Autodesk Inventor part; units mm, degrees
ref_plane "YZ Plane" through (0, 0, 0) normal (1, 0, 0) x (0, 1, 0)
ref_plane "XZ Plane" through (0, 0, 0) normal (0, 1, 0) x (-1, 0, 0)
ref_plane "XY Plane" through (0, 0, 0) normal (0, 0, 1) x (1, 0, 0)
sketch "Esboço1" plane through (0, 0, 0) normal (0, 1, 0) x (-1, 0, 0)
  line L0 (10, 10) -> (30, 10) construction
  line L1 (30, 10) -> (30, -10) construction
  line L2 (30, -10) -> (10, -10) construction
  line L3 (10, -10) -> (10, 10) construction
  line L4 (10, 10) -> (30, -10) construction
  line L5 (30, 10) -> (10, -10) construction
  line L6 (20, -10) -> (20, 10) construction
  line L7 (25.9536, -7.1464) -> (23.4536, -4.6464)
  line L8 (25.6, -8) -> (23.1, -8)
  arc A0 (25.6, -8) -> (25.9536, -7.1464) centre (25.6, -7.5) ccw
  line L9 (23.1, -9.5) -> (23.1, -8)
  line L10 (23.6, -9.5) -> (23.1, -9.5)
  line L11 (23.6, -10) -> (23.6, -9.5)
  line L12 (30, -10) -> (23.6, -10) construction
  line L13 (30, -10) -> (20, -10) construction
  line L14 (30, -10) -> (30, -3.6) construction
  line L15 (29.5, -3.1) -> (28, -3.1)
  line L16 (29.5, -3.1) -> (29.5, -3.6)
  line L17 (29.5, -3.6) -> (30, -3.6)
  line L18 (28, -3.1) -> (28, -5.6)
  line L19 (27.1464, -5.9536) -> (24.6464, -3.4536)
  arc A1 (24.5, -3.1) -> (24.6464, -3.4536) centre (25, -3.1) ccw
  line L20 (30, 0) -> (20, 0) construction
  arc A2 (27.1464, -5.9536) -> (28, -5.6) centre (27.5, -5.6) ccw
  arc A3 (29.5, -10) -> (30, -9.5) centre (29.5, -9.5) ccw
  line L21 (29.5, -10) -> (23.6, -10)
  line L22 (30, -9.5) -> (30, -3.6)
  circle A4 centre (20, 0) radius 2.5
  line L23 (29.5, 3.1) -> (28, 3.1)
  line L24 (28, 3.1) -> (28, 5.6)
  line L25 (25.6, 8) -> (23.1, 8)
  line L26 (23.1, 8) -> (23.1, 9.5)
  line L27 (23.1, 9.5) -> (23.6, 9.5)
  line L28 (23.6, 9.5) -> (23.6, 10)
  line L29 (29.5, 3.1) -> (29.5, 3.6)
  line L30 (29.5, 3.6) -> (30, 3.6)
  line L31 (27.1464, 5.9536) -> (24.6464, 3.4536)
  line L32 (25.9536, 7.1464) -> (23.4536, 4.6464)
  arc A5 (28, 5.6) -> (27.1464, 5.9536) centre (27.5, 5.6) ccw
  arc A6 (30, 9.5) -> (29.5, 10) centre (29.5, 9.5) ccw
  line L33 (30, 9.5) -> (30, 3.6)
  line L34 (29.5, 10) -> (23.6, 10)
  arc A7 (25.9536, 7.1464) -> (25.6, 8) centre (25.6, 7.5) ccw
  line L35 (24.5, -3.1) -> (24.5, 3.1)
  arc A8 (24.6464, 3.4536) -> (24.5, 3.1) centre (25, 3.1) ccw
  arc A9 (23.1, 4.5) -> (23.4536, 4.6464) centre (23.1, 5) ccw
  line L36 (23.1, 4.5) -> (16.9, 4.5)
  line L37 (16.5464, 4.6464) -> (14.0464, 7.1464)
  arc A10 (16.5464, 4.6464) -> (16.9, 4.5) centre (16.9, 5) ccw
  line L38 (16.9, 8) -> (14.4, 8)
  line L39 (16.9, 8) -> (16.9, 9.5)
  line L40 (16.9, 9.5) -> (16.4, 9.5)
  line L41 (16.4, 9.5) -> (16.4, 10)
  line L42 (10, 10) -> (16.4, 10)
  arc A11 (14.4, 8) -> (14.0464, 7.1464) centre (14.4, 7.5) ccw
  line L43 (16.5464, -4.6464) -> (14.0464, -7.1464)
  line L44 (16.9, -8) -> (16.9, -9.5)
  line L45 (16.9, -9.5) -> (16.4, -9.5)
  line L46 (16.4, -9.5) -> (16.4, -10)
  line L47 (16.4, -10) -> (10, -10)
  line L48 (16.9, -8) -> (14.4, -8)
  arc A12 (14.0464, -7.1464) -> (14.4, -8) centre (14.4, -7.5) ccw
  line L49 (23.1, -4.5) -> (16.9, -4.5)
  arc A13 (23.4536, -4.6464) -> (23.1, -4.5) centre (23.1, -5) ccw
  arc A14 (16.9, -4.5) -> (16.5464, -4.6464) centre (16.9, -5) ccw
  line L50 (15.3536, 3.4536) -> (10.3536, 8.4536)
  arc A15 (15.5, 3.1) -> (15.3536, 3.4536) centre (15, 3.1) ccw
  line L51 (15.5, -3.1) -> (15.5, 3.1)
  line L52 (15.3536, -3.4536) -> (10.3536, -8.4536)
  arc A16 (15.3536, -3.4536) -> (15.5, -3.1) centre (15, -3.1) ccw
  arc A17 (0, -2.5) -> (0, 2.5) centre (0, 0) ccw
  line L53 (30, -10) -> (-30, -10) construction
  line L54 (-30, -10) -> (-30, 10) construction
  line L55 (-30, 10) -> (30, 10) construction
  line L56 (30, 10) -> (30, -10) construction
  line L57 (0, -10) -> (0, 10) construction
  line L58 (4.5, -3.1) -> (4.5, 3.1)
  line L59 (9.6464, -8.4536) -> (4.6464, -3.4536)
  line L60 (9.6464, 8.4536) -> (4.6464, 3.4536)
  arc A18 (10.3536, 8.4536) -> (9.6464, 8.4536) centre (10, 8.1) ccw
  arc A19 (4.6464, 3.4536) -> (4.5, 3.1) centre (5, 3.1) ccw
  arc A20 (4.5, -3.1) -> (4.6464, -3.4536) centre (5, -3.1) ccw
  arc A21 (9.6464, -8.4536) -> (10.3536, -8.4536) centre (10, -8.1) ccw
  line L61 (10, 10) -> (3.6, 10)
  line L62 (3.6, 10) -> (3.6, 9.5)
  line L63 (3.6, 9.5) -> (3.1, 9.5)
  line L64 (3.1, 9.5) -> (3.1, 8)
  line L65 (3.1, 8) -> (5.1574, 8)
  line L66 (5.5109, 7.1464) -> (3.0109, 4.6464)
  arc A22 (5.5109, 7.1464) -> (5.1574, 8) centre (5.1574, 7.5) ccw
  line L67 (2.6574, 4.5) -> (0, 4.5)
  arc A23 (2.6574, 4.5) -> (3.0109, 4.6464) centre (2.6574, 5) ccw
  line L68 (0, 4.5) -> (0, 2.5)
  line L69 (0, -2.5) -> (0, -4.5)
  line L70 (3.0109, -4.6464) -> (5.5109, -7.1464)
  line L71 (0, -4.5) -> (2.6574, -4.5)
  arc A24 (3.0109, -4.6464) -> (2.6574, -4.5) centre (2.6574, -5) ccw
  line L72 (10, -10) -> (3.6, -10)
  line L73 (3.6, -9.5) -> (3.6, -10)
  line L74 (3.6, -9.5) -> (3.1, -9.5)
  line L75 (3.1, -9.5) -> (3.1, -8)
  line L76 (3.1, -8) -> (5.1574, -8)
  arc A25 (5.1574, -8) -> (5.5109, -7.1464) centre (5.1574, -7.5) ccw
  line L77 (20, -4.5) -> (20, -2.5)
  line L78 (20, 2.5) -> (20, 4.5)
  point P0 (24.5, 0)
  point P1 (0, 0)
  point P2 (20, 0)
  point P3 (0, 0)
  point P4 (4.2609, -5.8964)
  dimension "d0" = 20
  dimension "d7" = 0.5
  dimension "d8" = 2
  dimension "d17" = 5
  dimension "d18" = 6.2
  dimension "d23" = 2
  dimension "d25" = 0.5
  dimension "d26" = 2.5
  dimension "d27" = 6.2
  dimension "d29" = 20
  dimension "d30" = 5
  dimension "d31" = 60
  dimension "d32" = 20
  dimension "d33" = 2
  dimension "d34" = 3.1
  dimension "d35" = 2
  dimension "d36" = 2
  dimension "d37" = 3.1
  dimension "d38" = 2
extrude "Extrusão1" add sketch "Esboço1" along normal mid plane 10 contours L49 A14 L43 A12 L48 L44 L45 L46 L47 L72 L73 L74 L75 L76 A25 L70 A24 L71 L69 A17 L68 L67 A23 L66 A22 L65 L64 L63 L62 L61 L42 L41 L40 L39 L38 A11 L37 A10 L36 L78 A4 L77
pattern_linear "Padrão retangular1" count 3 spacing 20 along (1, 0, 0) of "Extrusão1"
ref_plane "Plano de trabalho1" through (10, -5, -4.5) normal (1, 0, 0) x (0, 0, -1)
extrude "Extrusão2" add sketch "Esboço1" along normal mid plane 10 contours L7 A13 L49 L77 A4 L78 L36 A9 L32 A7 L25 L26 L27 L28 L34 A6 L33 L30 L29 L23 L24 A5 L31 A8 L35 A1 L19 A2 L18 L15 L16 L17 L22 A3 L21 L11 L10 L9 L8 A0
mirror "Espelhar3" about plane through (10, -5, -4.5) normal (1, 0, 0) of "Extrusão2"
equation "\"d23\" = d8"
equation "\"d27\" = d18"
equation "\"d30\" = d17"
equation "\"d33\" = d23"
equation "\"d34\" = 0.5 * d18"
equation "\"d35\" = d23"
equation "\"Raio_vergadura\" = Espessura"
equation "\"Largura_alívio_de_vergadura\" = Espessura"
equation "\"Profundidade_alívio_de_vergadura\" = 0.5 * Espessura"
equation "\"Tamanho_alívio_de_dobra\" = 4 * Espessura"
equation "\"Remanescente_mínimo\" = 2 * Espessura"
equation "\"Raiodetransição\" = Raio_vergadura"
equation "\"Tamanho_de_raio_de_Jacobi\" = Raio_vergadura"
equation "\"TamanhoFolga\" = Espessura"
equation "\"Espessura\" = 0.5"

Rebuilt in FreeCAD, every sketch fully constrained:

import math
import FreeCAD as App
import Part
import Sketcher
Q = App.Units.Quantity

doc = App.newDocument("Part")
body = doc.addObject("PartDesign::Body", "Body")

sketch1 = body.newObject("Sketcher::SketchObject", "Sketch")
sketch1.AttachmentSupport = (doc.getObject("XZ_Plane"), [""])
sketch1.MapMode = "FlatFace"
sketch1.addGeometry([
    Part.LineSegment(App.Vector(-16.9, -4.5, 0), App.Vector(-20, -4.5, 0)),
    Part.LineSegment(App.Vector(-20, -4.5, 0), App.Vector(-20, -2.5, 0)),
    Part.ArcOfCircle(Part.Circle(App.Vector(-20, 0, 0), App.Vector(0, 0, 1), 2.5), math.radians(-90), math.radians(90)),
    Part.LineSegment(App.Vector(-20, 2.5, 0), App.Vector(-20, 4.5, 0)),
    Part.LineSegment(App.Vector(-20, 4.5, 0), App.Vector(-16.9, 4.5, 0)),
    Part.ArcOfCircle(Part.Circle(App.Vector(-16.9, 5, 0), App.Vector(0, 0, 1), 0.5), math.radians(-90), math.radians(-45)),
    Part.LineSegment(App.Vector(-16.55, 4.65, 0), App.Vector(-14.05, 7.15, 0)),
    Part.ArcOfCircle(Part.Circle(App.Vector(-14.4, 7.5, 0), App.Vector(0, 0, 1), 0.5), math.radians(-45), math.radians(90)),
    Part.LineSegment(App.Vector(-14.4, 8, 0), App.Vector(-16.9, 8, 0)),
    Part.LineSegment(App.Vector(-16.9, 8, 0), App.Vector(-16.9, 9.5, 0)),
    Part.LineSegment(App.Vector(-16.9, 9.5, 0), App.Vector(-16.4, 9.5, 0)),
    Part.LineSegment(App.Vector(-16.4, 9.5, 0), App.Vector(-16.4, 10, 0)),
    Part.LineSegment(App.Vector(-16.4, 10, 0), App.Vector(-3.6, 10, 0)),
    Part.LineSegment(App.Vector(-3.6, 10, 0), App.Vector(-3.6, 9.5, 0)),
    Part.LineSegment(App.Vector(-3.6, 9.5, 0), App.Vector(-3.1, 9.5, 0)),
    Part.LineSegment(App.Vector(-3.1, 9.5, 0), App.Vector(-3.1, 8, 0)),
    Part.LineSegment(App.Vector(-3.1, 8, 0), App.Vector(-5.16, 8, 0)),
    Part.ArcOfCircle(Part.Circle(App.Vector(-5.16, 7.5, 0), App.Vector(0, 0, 1), 0.5), math.radians(90), math.radians(225)),
    Part.LineSegment(App.Vector(-5.51, 7.15, 0), App.Vector(-3.01, 4.65, 0)),
    Part.ArcOfCircle(Part.Circle(App.Vector(-2.66, 5, 0), App.Vector(0, 0, 1), 0.5), math.radians(-135), math.radians(-90)),
    Part.LineSegment(App.Vector(-2.66, 4.5, 0), App.Vector(0, 4.5, 0)),
    Part.LineSegment(App.Vector(0, 4.5, 0), App.Vector(0, 2.5, 0)),
    Part.ArcOfCircle(Part.Circle(App.Vector(0, 0, 0), App.Vector(0, 0, 1), 2.5), math.radians(90), math.radians(270)),
    Part.LineSegment(App.Vector(0, -2.5, 0), App.Vector(0, -4.5, 0)),
    Part.LineSegment(App.Vector(0, -4.5, 0), App.Vector(-2.66, -4.5, 0)),
    Part.ArcOfCircle(Part.Circle(App.Vector(-2.66, -5, 0), App.Vector(0, 0, 1), 0.5), math.radians(90), math.radians(135)),
    Part.LineSegment(App.Vector(-3.01, -4.65, 0), App.Vector(-5.51, -7.15, 0)),
    Part.ArcOfCircle(Part.Circle(App.Vector(-5.16, -7.5, 0), App.Vector(0, 0, 1), 0.5), math.radians(135), math.radians(270)),
    Part.LineSegment(App.Vector(-5.16, -8, 0), App.Vector(-3.1, -8, 0)),
    Part.LineSegment(App.Vector(-3.1, -8, 0), App.Vector(-3.1, -9.5, 0)),
    Part.LineSegment(App.Vector(-3.1, -9.5, 0), App.Vector(-3.6, -9.5, 0)),
    Part.LineSegment(App.Vector(-3.6, -9.5, 0), App.Vector(-3.6, -10, 0)),
    Part.LineSegment(App.Vector(-3.6, -10, 0), App.Vector(-16.4, -10, 0)),
    Part.LineSegment(App.Vector(-16.4, -10, 0), App.Vector(-16.4, -9.5, 0)),
    Part.LineSegment(App.Vector(-16.4, -9.5, 0), App.Vector(-16.9, -9.5, 0)),
    Part.LineSegment(App.Vector(-16.9, -9.5, 0), App.Vector(-16.9, -8, 0)),
    Part.LineSegment(App.Vector(-16.9, -8, 0), App.Vector(-14.4, -8, 0)),
    Part.ArcOfCircle(Part.Circle(App.Vector(-14.4, -7.5, 0), App.Vector(0, 0, 1), 0.5), math.radians(-90), math.radians(45)),
    Part.LineSegment(App.Vector(-14.05, -7.15, 0), App.Vector(-16.55, -4.65, 0)),
    Part.ArcOfCircle(Part.Circle(App.Vector(-16.9, -5, 0), App.Vector(0, 0, 1), 0.5), math.radians(45), math.radians(90)),
    Part.LineSegment(App.Vector(-10.35, 8.45, 0), App.Vector(-15.35, 3.45, 0)),
    Part.ArcOfCircle(Part.Circle(App.Vector(-15, 3.1, 0), App.Vector(0, 0, 1), 0.5), math.radians(135), math.radians(180)),
    Part.LineSegment(App.Vector(-15.5, 3.1, 0), App.Vector(-15.5, -3.1, 0)),
    Part.ArcOfCircle(Part.Circle(App.Vector(-15, -3.1, 0), App.Vector(0, 0, 1), 0.5), math.radians(180), math.radians(225)),
    Part.LineSegment(App.Vector(-15.35, -3.45, 0), App.Vector(-10.35, -8.45, 0)),
    Part.ArcOfCircle(Part.Circle(App.Vector(-10, -8.1, 0), App.Vector(0, 0, 1), 0.5), math.radians(-135), math.radians(-45)),
    Part.LineSegment(App.Vector(-9.65, -8.45, 0), App.Vector(-4.65, -3.45, 0)),
    Part.ArcOfCircle(Part.Circle(App.Vector(-5, -3.1, 0), App.Vector(0, 0, 1), 0.5), math.radians(-45), math.radians(0)),
    Part.LineSegment(App.Vector(-4.5, -3.1, 0), App.Vector(-4.5, 3.1, 0)),
    Part.ArcOfCircle(Part.Circle(App.Vector(-5, 3.1, 0), App.Vector(0, 0, 1), 0.5), math.radians(0), math.radians(45)),
    Part.LineSegment(App.Vector(-4.65, 3.45, 0), App.Vector(-9.65, 8.45, 0)),
    Part.ArcOfCircle(Part.Circle(App.Vector(-10, 8.1, 0), App.Vector(0, 0, 1), 0.5), math.radians(45), math.radians(135)),
], False)
sketch1.addConstraint([
    Sketcher.Constraint("Coincident", 0, 2, 1, 1),
    Sketcher.Constraint("Coincident", 1, 2, 2, 1),
    Sketcher.Constraint("Coincident", 2, 2, 3, 1),
    Sketcher.Constraint("Coincident", 3, 2, 4, 1),
    Sketcher.Constraint("Tangent", 4, 2, 5, 1),
    Sketcher.Constraint("Tangent", 5, 2, 6, 1),
    Sketcher.Constraint("Tangent", 6, 2, 7, 1),
    Sketcher.Constraint("Tangent", 7, 2, 8, 1),
    Sketcher.Constraint("Coincident", 8, 2, 9, 1),
    Sketcher.Constraint("Coincident", 9, 2, 10, 1),
    Sketcher.Constraint("Coincident", 10, 2, 11, 1),
    Sketcher.Constraint("Coincident", 11, 2, 12, 1),
    Sketcher.Constraint("Coincident", 12, 2, 13, 1),
    Sketcher.Constraint("Coincident", 13, 2, 14, 1),
    Sketcher.Constraint("Coincident", 14, 2, 15, 1),
    Sketcher.Constraint("Coincident", 15, 2, 16, 1),
    Sketcher.Constraint("Tangent", 16, 2, 17, 1),
    Sketcher.Constraint("Tangent", 17, 2, 18, 1),
    Sketcher.Constraint("Tangent", 18, 2, 19, 1),
    Sketcher.Constraint("Tangent", 19, 2, 20, 1),
    Sketcher.Constraint("Coincident", 20, 2, 21, 1),
    Sketcher.Constraint("Coincident", 21, 2, 22, 1),
    Sketcher.Constraint("Coincident", 22, 2, 23, 1),
    Sketcher.Constraint("Coincident", 23, 2, 24, 1),
    Sketcher.Constraint("Tangent", 24, 2, 25, 1),
    Sketcher.Constraint("Tangent", 25, 2, 26, 1),
    Sketcher.Constraint("Tangent", 26, 2, 27, 1),
    Sketcher.Constraint("Tangent", 27, 2, 28, 1),
    Sketcher.Constraint("Coincident", 28, 2, 29, 1),
    Sketcher.Constraint("Coincident", 29, 2, 30, 1),
    Sketcher.Constraint("Coincident", 30, 2, 31, 1),
    Sketcher.Constraint("Coincident", 31, 2, 32, 1),
    Sketcher.Constraint("Coincident", 32, 2, 33, 1),
    Sketcher.Constraint("Coincident", 33, 2, 34, 1),
    Sketcher.Constraint("Coincident", 34, 2, 35, 1),
    Sketcher.Constraint("Coincident", 35, 2, 36, 1),
    Sketcher.Constraint("Tangent", 36, 2, 37, 1),
    Sketcher.Constraint("Tangent", 37, 2, 38, 1),
    Sketcher.Constraint("Tangent", 38, 2, 39, 1),
    Sketcher.Constraint("Tangent", 39, 2, 0, 1),
    Sketcher.Constraint("Tangent", 40, 2, 41, 1),
    Sketcher.Constraint("Tangent", 41, 2, 42, 1),
    Sketcher.Constraint("Tangent", 42, 2, 43, 1),
    Sketcher.Constraint("Tangent", 43, 2, 44, 1),
    Sketcher.Constraint("Tangent", 44, 2, 45, 1),
    Sketcher.Constraint("Tangent", 45, 2, 46, 1),
    Sketcher.Constraint("Tangent", 46, 2, 47, 1),
    Sketcher.Constraint("Tangent", 47, 2, 48, 1),
    Sketcher.Constraint("Tangent", 48, 2, 49, 1),
    Sketcher.Constraint("Tangent", 49, 2, 50, 1),
    Sketcher.Constraint("Tangent", 50, 2, 51, 1),
    Sketcher.Constraint("Tangent", 51, 2, 40, 1),
    Sketcher.Constraint("Horizontal", 0),
    Sketcher.Constraint("Vertical", 1),
    Sketcher.Constraint("Vertical", 3),
    Sketcher.Constraint("Horizontal", 4),
    Sketcher.Constraint("Horizontal", 8),
    Sketcher.Constraint("Vertical", 9),
    Sketcher.Constraint("Horizontal", 10),
    Sketcher.Constraint("Vertical", 11),
    Sketcher.Constraint("Horizontal", 12),
    Sketcher.Constraint("Vertical", 13),
    Sketcher.Constraint("Horizontal", 14),
    Sketcher.Constraint("Vertical", 15),
    Sketcher.Constraint("Horizontal", 16),
    Sketcher.Constraint("Horizontal", 20),
    Sketcher.Constraint("Vertical", 21),
    Sketcher.Constraint("Vertical", 23),
    Sketcher.Constraint("Horizontal", 24),
    Sketcher.Constraint("Horizontal", 28),
    Sketcher.Constraint("Vertical", 29),
    Sketcher.Constraint("Horizontal", 30),
    Sketcher.Constraint("Vertical", 31),
    Sketcher.Constraint("Horizontal", 32),
    Sketcher.Constraint("Vertical", 33),
    Sketcher.Constraint("Horizontal", 34),
    Sketcher.Constraint("Vertical", 35),
    Sketcher.Constraint("Horizontal", 36),
    Sketcher.Constraint("Vertical", 42),
    Sketcher.Constraint("Vertical", 48),
    Sketcher.Constraint("Coincident", 22, 3, -1, 1),
    Sketcher.Constraint("Equal", 5, 7),
    Sketcher.Constraint("Equal", 7, 17),
    Sketcher.Constraint("Equal", 17, 19),
    Sketcher.Constraint("Equal", 2, 22),
    Sketcher.Constraint("Equal", 19, 25),
    Sketcher.Constraint("Equal", 25, 27),
    Sketcher.Constraint("Equal", 27, 37),
    Sketcher.Constraint("Equal", 37, 39),
    Sketcher.Constraint("Equal", 39, 41),
    Sketcher.Constraint("Equal", 41, 43),
    Sketcher.Constraint("Equal", 43, 45),
    Sketcher.Constraint("Equal", 45, 47),
    Sketcher.Constraint("Equal", 47, 49),
    Sketcher.Constraint("Equal", 49, 51),
    Sketcher.Constraint("Symmetric", 20, 2, 23, 2, -1, 1),
    Sketcher.Constraint("Symmetric", 17, 3, 27, 3, -1),
    Sketcher.Constraint("Symmetric", 7, 3, 37, 3, -1),
    Sketcher.Constraint("Symmetric", 5, 3, 39, 3, -1),
    Sketcher.Constraint("Symmetric", 45, 3, 51, 3, -1),
    Sketcher.Constraint("Symmetric", 1, 2, 2, 2, -1),
    Sketcher.Constraint("Symmetric", 14, 2, 29, 2, -1),
    Sketcher.Constraint("Symmetric", 12, 2, 31, 2, -1),
    Sketcher.Constraint("Symmetric", 10, 2, 33, 2, -1),
    Sketcher.Constraint("PointOnObject", 20, 2, -2),
    Sketcher.Constraint("Perpendicular", 6, 18),
    Sketcher.Constraint("Perpendicular", 18, 26),
    Sketcher.Constraint("Perpendicular", 26, 38),
    Sketcher.Constraint("Perpendicular", 38, 40),
    Sketcher.Constraint("Perpendicular", 40, 44),
    Sketcher.Constraint("Perpendicular", 44, 46),
    Sketcher.Constraint("Perpendicular", 46, 50),
    Sketcher.Constraint("Horizontal", 7, 3, 17, 3),
    Sketcher.Constraint("Horizontal", 5, 3, 19, 3),
    Sketcher.Constraint("Horizontal", 43, 3, 47, 3),
    Sketcher.Constraint("Horizontal", 10, 2, 13, 2),
    Sketcher.Constraint("Vertical", 2, 3, 0, 2),
    Sketcher.Constraint("Vertical", 4, 2, 8, 2),
    Sketcher.Constraint("Vertical", 9, 2, 34, 2),
    Sketcher.Constraint("Equal", 10, 14),
    Sketcher.Constraint("Equal", 34, 11),
    Sketcher.Constraint("Radius", 2, Q("2.5 mm")),
    Sketcher.Constraint("Radius", 5, Q("0.5 mm")),
    Sketcher.Constraint("DistanceY", 1, 1, 1, 2, Q("2 mm")),
    Sketcher.Constraint("DistanceX", 0, 2, 0, 1, Q("3.1 mm")),
    Sketcher.Constraint("DistanceX", 8, 2, 8, 1, Q("2.5 mm")),
    Sketcher.Constraint("DistanceX", 10, 1, 10, 2, Q("0.5 mm")),
    Sketcher.Constraint("DistanceY", 42, 2, 42, 1, Q("6.2 mm")),
    Sketcher.Constraint("DistanceX", 2, 3, -1, 1, Q("20 mm")),
    Sketcher.Constraint("DistanceX", 47, 3, -1, 1, Q("5 mm")),
    Sketcher.Constraint("DistanceX", 14, 2, -1, 1, Q("3.1 mm")),
    Sketcher.Constraint("DistanceY", 9, 1, 9, 2, Q("1.5 mm")),
    Sketcher.Constraint("DistanceX", 41, 3, -1, 1, Q("15 mm")),
    Sketcher.Constraint("DistanceX", 16, 2, 16, 1, Q("2.0574 mm")),
])
pad1 = body.newObject("PartDesign::Pad", "Pad")
pad1.Profile = sketch1
pad1.Length = 10
pad1.Midplane = True
doc.recompute()

linearpattern = body.newObject("PartDesign::LinearPattern", "LinearPattern")
linearpattern.Originals = [pad1]
linearpattern.Direction = (doc.getObject("X_Axis"), [""])
linearpattern.Mode = "offset"
linearpattern.Offset = 20
linearpattern.Occurrences = 3
body.Tip = linearpattern

sketch2 = body.newObject("Sketcher::SketchObject", "Sketch001")
sketch2.AttachmentSupport = (doc.getObject("XZ_Plane"), [""])
sketch2.MapMode = "FlatFace"
sketch2.addGeometry([
    Part.LineSegment(App.Vector(-23.45, -4.65, 0), App.Vector(-25.95, -7.15, 0)),
    Part.ArcOfCircle(Part.Circle(App.Vector(-25.6, -7.5, 0), App.Vector(0, 0, 1), 0.5), math.radians(135), math.radians(270)),
    Part.LineSegment(App.Vector(-25.6, -8, 0), App.Vector(-23.1, -8, 0)),
    Part.LineSegment(App.Vector(-23.1, -8, 0), App.Vector(-23.1, -9.5, 0)),
    Part.LineSegment(App.Vector(-23.1, -9.5, 0), App.Vector(-23.6, -9.5, 0)),
    Part.LineSegment(App.Vector(-23.6, -9.5, 0), App.Vector(-23.6, -10, 0)),
    Part.LineSegment(App.Vector(-23.6, -10, 0), App.Vector(-29.5, -10, 0)),
    Part.ArcOfCircle(Part.Circle(App.Vector(-29.5, -9.5, 0), App.Vector(0, 0, 1), 0.5), math.radians(180), math.radians(270)),
    Part.LineSegment(App.Vector(-30, -9.5, 0), App.Vector(-30, -3.6, 0)),
    Part.LineSegment(App.Vector(-30, -3.6, 0), App.Vector(-29.5, -3.6, 0)),
    Part.LineSegment(App.Vector(-29.5, -3.6, 0), App.Vector(-29.5, -3.1, 0)),
    Part.LineSegment(App.Vector(-29.5, -3.1, 0), App.Vector(-28, -3.1, 0)),
    Part.LineSegment(App.Vector(-28, -3.1, 0), App.Vector(-28, -5.6, 0)),
    Part.ArcOfCircle(Part.Circle(App.Vector(-27.5, -5.6, 0), App.Vector(0, 0, 1), 0.5), math.radians(180), math.radians(315)),
    Part.LineSegment(App.Vector(-27.15, -5.95, 0), App.Vector(-24.65, -3.45, 0)),
    Part.ArcOfCircle(Part.Circle(App.Vector(-25, -3.1, 0), App.Vector(0, 0, 1), 0.5), math.radians(-45), math.radians(0)),
    Part.LineSegment(App.Vector(-24.5, -3.1, 0), App.Vector(-24.5, 3.1, 0)),
    Part.ArcOfCircle(Part.Circle(App.Vector(-25, 3.1, 0), App.Vector(0, 0, 1), 0.5), math.radians(0), math.radians(45)),
    Part.LineSegment(App.Vector(-24.65, 3.45, 0), App.Vector(-27.15, 5.95, 0)),
    Part.ArcOfCircle(Part.Circle(App.Vector(-27.5, 5.6, 0), App.Vector(0, 0, 1), 0.5), math.radians(45), math.radians(180)),
    Part.LineSegment(App.Vector(-28, 5.6, 0), App.Vector(-28, 3.1, 0)),
    Part.LineSegment(App.Vector(-28, 3.1, 0), App.Vector(-29.5, 3.1, 0)),
    Part.LineSegment(App.Vector(-29.5, 3.1, 0), App.Vector(-29.5, 3.6, 0)),
    Part.LineSegment(App.Vector(-29.5, 3.6, 0), App.Vector(-30, 3.6, 0)),
    Part.LineSegment(App.Vector(-30, 3.6, 0), App.Vector(-30, 9.5, 0)),
    Part.ArcOfCircle(Part.Circle(App.Vector(-29.5, 9.5, 0), App.Vector(0, 0, 1), 0.5), math.radians(90), math.radians(180)),
    Part.LineSegment(App.Vector(-29.5, 10, 0), App.Vector(-23.6, 10, 0)),
    Part.LineSegment(App.Vector(-23.6, 10, 0), App.Vector(-23.6, 9.5, 0)),
    Part.LineSegment(App.Vector(-23.6, 9.5, 0), App.Vector(-23.1, 9.5, 0)),
    Part.LineSegment(App.Vector(-23.1, 9.5, 0), App.Vector(-23.1, 8, 0)),
    Part.LineSegment(App.Vector(-23.1, 8, 0), App.Vector(-25.6, 8, 0)),
    Part.ArcOfCircle(Part.Circle(App.Vector(-25.6, 7.5, 0), App.Vector(0, 0, 1), 0.5), math.radians(90), math.radians(225)),
    Part.LineSegment(App.Vector(-25.95, 7.15, 0), App.Vector(-23.45, 4.65, 0)),
    Part.ArcOfCircle(Part.Circle(App.Vector(-23.1, 5, 0), App.Vector(0, 0, 1), 0.5), math.radians(-135), math.radians(-90)),
    Part.LineSegment(App.Vector(-23.1, 4.5, 0), App.Vector(-20, 4.5, 0)),
    Part.LineSegment(App.Vector(-20, 4.5, 0), App.Vector(-20, 2.5, 0)),
    Part.ArcOfCircle(Part.Circle(App.Vector(-20, 0, 0), App.Vector(0, 0, 1), 2.5), math.radians(90), math.radians(270)),
    Part.LineSegment(App.Vector(-20, -2.5, 0), App.Vector(-20, -4.5, 0)),
    Part.LineSegment(App.Vector(-20, -4.5, 0), App.Vector(-23.1, -4.5, 0)),
    Part.ArcOfCircle(Part.Circle(App.Vector(-23.1, -5, 0), App.Vector(0, 0, 1), 0.5), math.radians(90), math.radians(135)),
], False)
sketch2.addConstraint([
    Sketcher.Constraint("Tangent", 0, 2, 1, 1),
    Sketcher.Constraint("Tangent", 1, 2, 2, 1),
    Sketcher.Constraint("Coincident", 2, 2, 3, 1),
    Sketcher.Constraint("Coincident", 3, 2, 4, 1),
    Sketcher.Constraint("Coincident", 4, 2, 5, 1),
    Sketcher.Constraint("Coincident", 5, 2, 6, 1),
    Sketcher.Constraint("Tangent", 6, 2, 7, 2),
    Sketcher.Constraint("Tangent", 7, 1, 8, 1),
    Sketcher.Constraint("Coincident", 8, 2, 9, 1),
    Sketcher.Constraint("Coincident", 9, 2, 10, 1),
    Sketcher.Constraint("Coincident", 10, 2, 11, 1),
    Sketcher.Constraint("Coincident", 11, 2, 12, 1),
    Sketcher.Constraint("Tangent", 12, 2, 13, 1),
    Sketcher.Constraint("Tangent", 13, 2, 14, 1),
    Sketcher.Constraint("Tangent", 14, 2, 15, 1),
    Sketcher.Constraint("Tangent", 15, 2, 16, 1),
    Sketcher.Constraint("Tangent", 16, 2, 17, 1),
    Sketcher.Constraint("Tangent", 17, 2, 18, 1),
    Sketcher.Constraint("Tangent", 18, 2, 19, 1),
    Sketcher.Constraint("Tangent", 19, 2, 20, 1),
    Sketcher.Constraint("Coincident", 20, 2, 21, 1),
    Sketcher.Constraint("Coincident", 21, 2, 22, 1),
    Sketcher.Constraint("Coincident", 22, 2, 23, 1),
    Sketcher.Constraint("Coincident", 23, 2, 24, 1),
    Sketcher.Constraint("Tangent", 24, 2, 25, 2),
    Sketcher.Constraint("Tangent", 25, 1, 26, 1),
    Sketcher.Constraint("Coincident", 26, 2, 27, 1),
    Sketcher.Constraint("Coincident", 27, 2, 28, 1),
    Sketcher.Constraint("Coincident", 28, 2, 29, 1),
    Sketcher.Constraint("Coincident", 29, 2, 30, 1),
    Sketcher.Constraint("Tangent", 30, 2, 31, 1),
    Sketcher.Constraint("Tangent", 31, 2, 32, 1),
    Sketcher.Constraint("Tangent", 32, 2, 33, 1),
    Sketcher.Constraint("Tangent", 33, 2, 34, 1),
    Sketcher.Constraint("Coincident", 34, 2, 35, 1),
    Sketcher.Constraint("Coincident", 35, 2, 36, 1),
    Sketcher.Constraint("Coincident", 36, 2, 37, 1),
    Sketcher.Constraint("Coincident", 37, 2, 38, 1),
    Sketcher.Constraint("Tangent", 38, 2, 39, 1),
    Sketcher.Constraint("Tangent", 39, 2, 0, 1),
    Sketcher.Constraint("Horizontal", 2),
    Sketcher.Constraint("Vertical", 3),
    Sketcher.Constraint("Horizontal", 4),
    Sketcher.Constraint("Vertical", 5),
    Sketcher.Constraint("Horizontal", 6),
    Sketcher.Constraint("Vertical", 8),
    Sketcher.Constraint("Horizontal", 9),
    Sketcher.Constraint("Vertical", 10),
    Sketcher.Constraint("Horizontal", 11),
    Sketcher.Constraint("Vertical", 12),
    Sketcher.Constraint("Vertical", 16),
    Sketcher.Constraint("Vertical", 20),
    Sketcher.Constraint("Horizontal", 21),
    Sketcher.Constraint("Vertical", 22),
    Sketcher.Constraint("Horizontal", 23),
    Sketcher.Constraint("Vertical", 24),
    Sketcher.Constraint("Horizontal", 26),
    Sketcher.Constraint("Vertical", 27),
    Sketcher.Constraint("Horizontal", 28),
    Sketcher.Constraint("Vertical", 29),
    Sketcher.Constraint("Horizontal", 30),
    Sketcher.Constraint("Horizontal", 34),
    Sketcher.Constraint("Vertical", 35),
    Sketcher.Constraint("Vertical", 37),
    Sketcher.Constraint("Horizontal", 38),
    Sketcher.Constraint("Equal", 1, 7),
    Sketcher.Constraint("Equal", 7, 13),
    Sketcher.Constraint("Equal", 13, 15),
    Sketcher.Constraint("Equal", 15, 17),
    Sketcher.Constraint("Equal", 17, 19),
    Sketcher.Constraint("Equal", 19, 25),
    Sketcher.Constraint("Equal", 25, 31),
    Sketcher.Constraint("Equal", 31, 33),
    Sketcher.Constraint("Equal", 33, 39),
    Sketcher.Constraint("Symmetric", 13, 3, 19, 3, -1),
    Sketcher.Constraint("Symmetric", 7, 3, 25, 3, -1),
    Sketcher.Constraint("Symmetric", 1, 3, 31, 3, -1),
    Sketcher.Constraint("Symmetric", 33, 3, 39, 3, -1),
    Sketcher.Constraint("Symmetric", 10, 2, 21, 2, -1),
    Sketcher.Constraint("Symmetric", 4, 2, 27, 2, -1),
    Sketcher.Constraint("Symmetric", 35, 2, 36, 2, -1),
    Sketcher.Constraint("Parallel", 0, 14),
    Sketcher.Constraint("Perpendicular", 14, 18),
    Sketcher.Constraint("Parallel", 18, 32),
    Sketcher.Constraint("Horizontal", 7, 3, 3, 2),
    Sketcher.Constraint("Horizontal", 15, 3, 10, 2),
    Sketcher.Constraint("Vertical", 39, 3, 2, 2),
    Sketcher.Constraint("Vertical", 6, 2, 9, 2),
    Sketcher.Constraint("Vertical", 3, 2, 28, 2),
    Sketcher.Constraint("Vertical", 36, 3, 34, 2),
    Sketcher.Constraint("Equal", 4, 9),
    Sketcher.Constraint("Equal", 21, 3),
    Sketcher.Constraint("Equal", 26, 8),
    Sketcher.Constraint("Equal", 5, 10),
    Sketcher.Constraint("Equal", 30, 12),
    Sketcher.Constraint("Equal", 10, 22),
    Sketcher.Constraint("Radius", 1, Q("0.5 mm")),
    Sketcher.Constraint("Radius", 36, Q("2.5 mm")),
    Sketcher.Constraint("DistanceY", 35, 2, 35, 1, Q("2 mm")),
    Sketcher.Constraint("DistanceX", 2, 1, 2, 2, Q("2.5 mm")),
    Sketcher.Constraint("DistanceX", 34, 1, 34, 2, Q("3.1 mm")),
    Sketcher.Constraint("DistanceY", 16, 1, 16, 2, Q("6.2 mm")),
    Sketcher.Constraint("DistanceX", 36, 3, -1, 1, Q("20 mm")),
    Sketcher.Constraint("DistanceY", 7, 3, 1, 3, Q("2 mm")),
])
pad2 = body.newObject("PartDesign::Pad", "Pad001")
pad2.Profile = sketch2
pad2.Length = 10
pad2.Midplane = True
doc.recompute()

datumplane = body.newObject("PartDesign::Plane", "DatumPlane")
datumplane.AttachmentSupport = (doc.getObject("YZ_Plane"), [""])
datumplane.MapMode = "FlatFace"
datumplane.AttachmentOffset = App.Placement(App.Vector(0, 0, 10), App.Rotation())
mirrored = body.newObject("PartDesign::Mirrored", "Mirrored")
mirrored.Originals = [pad2]
mirrored.MirrorPlane = (datumplane, [""])
body.Tip = mirrored

doc.recompute()
